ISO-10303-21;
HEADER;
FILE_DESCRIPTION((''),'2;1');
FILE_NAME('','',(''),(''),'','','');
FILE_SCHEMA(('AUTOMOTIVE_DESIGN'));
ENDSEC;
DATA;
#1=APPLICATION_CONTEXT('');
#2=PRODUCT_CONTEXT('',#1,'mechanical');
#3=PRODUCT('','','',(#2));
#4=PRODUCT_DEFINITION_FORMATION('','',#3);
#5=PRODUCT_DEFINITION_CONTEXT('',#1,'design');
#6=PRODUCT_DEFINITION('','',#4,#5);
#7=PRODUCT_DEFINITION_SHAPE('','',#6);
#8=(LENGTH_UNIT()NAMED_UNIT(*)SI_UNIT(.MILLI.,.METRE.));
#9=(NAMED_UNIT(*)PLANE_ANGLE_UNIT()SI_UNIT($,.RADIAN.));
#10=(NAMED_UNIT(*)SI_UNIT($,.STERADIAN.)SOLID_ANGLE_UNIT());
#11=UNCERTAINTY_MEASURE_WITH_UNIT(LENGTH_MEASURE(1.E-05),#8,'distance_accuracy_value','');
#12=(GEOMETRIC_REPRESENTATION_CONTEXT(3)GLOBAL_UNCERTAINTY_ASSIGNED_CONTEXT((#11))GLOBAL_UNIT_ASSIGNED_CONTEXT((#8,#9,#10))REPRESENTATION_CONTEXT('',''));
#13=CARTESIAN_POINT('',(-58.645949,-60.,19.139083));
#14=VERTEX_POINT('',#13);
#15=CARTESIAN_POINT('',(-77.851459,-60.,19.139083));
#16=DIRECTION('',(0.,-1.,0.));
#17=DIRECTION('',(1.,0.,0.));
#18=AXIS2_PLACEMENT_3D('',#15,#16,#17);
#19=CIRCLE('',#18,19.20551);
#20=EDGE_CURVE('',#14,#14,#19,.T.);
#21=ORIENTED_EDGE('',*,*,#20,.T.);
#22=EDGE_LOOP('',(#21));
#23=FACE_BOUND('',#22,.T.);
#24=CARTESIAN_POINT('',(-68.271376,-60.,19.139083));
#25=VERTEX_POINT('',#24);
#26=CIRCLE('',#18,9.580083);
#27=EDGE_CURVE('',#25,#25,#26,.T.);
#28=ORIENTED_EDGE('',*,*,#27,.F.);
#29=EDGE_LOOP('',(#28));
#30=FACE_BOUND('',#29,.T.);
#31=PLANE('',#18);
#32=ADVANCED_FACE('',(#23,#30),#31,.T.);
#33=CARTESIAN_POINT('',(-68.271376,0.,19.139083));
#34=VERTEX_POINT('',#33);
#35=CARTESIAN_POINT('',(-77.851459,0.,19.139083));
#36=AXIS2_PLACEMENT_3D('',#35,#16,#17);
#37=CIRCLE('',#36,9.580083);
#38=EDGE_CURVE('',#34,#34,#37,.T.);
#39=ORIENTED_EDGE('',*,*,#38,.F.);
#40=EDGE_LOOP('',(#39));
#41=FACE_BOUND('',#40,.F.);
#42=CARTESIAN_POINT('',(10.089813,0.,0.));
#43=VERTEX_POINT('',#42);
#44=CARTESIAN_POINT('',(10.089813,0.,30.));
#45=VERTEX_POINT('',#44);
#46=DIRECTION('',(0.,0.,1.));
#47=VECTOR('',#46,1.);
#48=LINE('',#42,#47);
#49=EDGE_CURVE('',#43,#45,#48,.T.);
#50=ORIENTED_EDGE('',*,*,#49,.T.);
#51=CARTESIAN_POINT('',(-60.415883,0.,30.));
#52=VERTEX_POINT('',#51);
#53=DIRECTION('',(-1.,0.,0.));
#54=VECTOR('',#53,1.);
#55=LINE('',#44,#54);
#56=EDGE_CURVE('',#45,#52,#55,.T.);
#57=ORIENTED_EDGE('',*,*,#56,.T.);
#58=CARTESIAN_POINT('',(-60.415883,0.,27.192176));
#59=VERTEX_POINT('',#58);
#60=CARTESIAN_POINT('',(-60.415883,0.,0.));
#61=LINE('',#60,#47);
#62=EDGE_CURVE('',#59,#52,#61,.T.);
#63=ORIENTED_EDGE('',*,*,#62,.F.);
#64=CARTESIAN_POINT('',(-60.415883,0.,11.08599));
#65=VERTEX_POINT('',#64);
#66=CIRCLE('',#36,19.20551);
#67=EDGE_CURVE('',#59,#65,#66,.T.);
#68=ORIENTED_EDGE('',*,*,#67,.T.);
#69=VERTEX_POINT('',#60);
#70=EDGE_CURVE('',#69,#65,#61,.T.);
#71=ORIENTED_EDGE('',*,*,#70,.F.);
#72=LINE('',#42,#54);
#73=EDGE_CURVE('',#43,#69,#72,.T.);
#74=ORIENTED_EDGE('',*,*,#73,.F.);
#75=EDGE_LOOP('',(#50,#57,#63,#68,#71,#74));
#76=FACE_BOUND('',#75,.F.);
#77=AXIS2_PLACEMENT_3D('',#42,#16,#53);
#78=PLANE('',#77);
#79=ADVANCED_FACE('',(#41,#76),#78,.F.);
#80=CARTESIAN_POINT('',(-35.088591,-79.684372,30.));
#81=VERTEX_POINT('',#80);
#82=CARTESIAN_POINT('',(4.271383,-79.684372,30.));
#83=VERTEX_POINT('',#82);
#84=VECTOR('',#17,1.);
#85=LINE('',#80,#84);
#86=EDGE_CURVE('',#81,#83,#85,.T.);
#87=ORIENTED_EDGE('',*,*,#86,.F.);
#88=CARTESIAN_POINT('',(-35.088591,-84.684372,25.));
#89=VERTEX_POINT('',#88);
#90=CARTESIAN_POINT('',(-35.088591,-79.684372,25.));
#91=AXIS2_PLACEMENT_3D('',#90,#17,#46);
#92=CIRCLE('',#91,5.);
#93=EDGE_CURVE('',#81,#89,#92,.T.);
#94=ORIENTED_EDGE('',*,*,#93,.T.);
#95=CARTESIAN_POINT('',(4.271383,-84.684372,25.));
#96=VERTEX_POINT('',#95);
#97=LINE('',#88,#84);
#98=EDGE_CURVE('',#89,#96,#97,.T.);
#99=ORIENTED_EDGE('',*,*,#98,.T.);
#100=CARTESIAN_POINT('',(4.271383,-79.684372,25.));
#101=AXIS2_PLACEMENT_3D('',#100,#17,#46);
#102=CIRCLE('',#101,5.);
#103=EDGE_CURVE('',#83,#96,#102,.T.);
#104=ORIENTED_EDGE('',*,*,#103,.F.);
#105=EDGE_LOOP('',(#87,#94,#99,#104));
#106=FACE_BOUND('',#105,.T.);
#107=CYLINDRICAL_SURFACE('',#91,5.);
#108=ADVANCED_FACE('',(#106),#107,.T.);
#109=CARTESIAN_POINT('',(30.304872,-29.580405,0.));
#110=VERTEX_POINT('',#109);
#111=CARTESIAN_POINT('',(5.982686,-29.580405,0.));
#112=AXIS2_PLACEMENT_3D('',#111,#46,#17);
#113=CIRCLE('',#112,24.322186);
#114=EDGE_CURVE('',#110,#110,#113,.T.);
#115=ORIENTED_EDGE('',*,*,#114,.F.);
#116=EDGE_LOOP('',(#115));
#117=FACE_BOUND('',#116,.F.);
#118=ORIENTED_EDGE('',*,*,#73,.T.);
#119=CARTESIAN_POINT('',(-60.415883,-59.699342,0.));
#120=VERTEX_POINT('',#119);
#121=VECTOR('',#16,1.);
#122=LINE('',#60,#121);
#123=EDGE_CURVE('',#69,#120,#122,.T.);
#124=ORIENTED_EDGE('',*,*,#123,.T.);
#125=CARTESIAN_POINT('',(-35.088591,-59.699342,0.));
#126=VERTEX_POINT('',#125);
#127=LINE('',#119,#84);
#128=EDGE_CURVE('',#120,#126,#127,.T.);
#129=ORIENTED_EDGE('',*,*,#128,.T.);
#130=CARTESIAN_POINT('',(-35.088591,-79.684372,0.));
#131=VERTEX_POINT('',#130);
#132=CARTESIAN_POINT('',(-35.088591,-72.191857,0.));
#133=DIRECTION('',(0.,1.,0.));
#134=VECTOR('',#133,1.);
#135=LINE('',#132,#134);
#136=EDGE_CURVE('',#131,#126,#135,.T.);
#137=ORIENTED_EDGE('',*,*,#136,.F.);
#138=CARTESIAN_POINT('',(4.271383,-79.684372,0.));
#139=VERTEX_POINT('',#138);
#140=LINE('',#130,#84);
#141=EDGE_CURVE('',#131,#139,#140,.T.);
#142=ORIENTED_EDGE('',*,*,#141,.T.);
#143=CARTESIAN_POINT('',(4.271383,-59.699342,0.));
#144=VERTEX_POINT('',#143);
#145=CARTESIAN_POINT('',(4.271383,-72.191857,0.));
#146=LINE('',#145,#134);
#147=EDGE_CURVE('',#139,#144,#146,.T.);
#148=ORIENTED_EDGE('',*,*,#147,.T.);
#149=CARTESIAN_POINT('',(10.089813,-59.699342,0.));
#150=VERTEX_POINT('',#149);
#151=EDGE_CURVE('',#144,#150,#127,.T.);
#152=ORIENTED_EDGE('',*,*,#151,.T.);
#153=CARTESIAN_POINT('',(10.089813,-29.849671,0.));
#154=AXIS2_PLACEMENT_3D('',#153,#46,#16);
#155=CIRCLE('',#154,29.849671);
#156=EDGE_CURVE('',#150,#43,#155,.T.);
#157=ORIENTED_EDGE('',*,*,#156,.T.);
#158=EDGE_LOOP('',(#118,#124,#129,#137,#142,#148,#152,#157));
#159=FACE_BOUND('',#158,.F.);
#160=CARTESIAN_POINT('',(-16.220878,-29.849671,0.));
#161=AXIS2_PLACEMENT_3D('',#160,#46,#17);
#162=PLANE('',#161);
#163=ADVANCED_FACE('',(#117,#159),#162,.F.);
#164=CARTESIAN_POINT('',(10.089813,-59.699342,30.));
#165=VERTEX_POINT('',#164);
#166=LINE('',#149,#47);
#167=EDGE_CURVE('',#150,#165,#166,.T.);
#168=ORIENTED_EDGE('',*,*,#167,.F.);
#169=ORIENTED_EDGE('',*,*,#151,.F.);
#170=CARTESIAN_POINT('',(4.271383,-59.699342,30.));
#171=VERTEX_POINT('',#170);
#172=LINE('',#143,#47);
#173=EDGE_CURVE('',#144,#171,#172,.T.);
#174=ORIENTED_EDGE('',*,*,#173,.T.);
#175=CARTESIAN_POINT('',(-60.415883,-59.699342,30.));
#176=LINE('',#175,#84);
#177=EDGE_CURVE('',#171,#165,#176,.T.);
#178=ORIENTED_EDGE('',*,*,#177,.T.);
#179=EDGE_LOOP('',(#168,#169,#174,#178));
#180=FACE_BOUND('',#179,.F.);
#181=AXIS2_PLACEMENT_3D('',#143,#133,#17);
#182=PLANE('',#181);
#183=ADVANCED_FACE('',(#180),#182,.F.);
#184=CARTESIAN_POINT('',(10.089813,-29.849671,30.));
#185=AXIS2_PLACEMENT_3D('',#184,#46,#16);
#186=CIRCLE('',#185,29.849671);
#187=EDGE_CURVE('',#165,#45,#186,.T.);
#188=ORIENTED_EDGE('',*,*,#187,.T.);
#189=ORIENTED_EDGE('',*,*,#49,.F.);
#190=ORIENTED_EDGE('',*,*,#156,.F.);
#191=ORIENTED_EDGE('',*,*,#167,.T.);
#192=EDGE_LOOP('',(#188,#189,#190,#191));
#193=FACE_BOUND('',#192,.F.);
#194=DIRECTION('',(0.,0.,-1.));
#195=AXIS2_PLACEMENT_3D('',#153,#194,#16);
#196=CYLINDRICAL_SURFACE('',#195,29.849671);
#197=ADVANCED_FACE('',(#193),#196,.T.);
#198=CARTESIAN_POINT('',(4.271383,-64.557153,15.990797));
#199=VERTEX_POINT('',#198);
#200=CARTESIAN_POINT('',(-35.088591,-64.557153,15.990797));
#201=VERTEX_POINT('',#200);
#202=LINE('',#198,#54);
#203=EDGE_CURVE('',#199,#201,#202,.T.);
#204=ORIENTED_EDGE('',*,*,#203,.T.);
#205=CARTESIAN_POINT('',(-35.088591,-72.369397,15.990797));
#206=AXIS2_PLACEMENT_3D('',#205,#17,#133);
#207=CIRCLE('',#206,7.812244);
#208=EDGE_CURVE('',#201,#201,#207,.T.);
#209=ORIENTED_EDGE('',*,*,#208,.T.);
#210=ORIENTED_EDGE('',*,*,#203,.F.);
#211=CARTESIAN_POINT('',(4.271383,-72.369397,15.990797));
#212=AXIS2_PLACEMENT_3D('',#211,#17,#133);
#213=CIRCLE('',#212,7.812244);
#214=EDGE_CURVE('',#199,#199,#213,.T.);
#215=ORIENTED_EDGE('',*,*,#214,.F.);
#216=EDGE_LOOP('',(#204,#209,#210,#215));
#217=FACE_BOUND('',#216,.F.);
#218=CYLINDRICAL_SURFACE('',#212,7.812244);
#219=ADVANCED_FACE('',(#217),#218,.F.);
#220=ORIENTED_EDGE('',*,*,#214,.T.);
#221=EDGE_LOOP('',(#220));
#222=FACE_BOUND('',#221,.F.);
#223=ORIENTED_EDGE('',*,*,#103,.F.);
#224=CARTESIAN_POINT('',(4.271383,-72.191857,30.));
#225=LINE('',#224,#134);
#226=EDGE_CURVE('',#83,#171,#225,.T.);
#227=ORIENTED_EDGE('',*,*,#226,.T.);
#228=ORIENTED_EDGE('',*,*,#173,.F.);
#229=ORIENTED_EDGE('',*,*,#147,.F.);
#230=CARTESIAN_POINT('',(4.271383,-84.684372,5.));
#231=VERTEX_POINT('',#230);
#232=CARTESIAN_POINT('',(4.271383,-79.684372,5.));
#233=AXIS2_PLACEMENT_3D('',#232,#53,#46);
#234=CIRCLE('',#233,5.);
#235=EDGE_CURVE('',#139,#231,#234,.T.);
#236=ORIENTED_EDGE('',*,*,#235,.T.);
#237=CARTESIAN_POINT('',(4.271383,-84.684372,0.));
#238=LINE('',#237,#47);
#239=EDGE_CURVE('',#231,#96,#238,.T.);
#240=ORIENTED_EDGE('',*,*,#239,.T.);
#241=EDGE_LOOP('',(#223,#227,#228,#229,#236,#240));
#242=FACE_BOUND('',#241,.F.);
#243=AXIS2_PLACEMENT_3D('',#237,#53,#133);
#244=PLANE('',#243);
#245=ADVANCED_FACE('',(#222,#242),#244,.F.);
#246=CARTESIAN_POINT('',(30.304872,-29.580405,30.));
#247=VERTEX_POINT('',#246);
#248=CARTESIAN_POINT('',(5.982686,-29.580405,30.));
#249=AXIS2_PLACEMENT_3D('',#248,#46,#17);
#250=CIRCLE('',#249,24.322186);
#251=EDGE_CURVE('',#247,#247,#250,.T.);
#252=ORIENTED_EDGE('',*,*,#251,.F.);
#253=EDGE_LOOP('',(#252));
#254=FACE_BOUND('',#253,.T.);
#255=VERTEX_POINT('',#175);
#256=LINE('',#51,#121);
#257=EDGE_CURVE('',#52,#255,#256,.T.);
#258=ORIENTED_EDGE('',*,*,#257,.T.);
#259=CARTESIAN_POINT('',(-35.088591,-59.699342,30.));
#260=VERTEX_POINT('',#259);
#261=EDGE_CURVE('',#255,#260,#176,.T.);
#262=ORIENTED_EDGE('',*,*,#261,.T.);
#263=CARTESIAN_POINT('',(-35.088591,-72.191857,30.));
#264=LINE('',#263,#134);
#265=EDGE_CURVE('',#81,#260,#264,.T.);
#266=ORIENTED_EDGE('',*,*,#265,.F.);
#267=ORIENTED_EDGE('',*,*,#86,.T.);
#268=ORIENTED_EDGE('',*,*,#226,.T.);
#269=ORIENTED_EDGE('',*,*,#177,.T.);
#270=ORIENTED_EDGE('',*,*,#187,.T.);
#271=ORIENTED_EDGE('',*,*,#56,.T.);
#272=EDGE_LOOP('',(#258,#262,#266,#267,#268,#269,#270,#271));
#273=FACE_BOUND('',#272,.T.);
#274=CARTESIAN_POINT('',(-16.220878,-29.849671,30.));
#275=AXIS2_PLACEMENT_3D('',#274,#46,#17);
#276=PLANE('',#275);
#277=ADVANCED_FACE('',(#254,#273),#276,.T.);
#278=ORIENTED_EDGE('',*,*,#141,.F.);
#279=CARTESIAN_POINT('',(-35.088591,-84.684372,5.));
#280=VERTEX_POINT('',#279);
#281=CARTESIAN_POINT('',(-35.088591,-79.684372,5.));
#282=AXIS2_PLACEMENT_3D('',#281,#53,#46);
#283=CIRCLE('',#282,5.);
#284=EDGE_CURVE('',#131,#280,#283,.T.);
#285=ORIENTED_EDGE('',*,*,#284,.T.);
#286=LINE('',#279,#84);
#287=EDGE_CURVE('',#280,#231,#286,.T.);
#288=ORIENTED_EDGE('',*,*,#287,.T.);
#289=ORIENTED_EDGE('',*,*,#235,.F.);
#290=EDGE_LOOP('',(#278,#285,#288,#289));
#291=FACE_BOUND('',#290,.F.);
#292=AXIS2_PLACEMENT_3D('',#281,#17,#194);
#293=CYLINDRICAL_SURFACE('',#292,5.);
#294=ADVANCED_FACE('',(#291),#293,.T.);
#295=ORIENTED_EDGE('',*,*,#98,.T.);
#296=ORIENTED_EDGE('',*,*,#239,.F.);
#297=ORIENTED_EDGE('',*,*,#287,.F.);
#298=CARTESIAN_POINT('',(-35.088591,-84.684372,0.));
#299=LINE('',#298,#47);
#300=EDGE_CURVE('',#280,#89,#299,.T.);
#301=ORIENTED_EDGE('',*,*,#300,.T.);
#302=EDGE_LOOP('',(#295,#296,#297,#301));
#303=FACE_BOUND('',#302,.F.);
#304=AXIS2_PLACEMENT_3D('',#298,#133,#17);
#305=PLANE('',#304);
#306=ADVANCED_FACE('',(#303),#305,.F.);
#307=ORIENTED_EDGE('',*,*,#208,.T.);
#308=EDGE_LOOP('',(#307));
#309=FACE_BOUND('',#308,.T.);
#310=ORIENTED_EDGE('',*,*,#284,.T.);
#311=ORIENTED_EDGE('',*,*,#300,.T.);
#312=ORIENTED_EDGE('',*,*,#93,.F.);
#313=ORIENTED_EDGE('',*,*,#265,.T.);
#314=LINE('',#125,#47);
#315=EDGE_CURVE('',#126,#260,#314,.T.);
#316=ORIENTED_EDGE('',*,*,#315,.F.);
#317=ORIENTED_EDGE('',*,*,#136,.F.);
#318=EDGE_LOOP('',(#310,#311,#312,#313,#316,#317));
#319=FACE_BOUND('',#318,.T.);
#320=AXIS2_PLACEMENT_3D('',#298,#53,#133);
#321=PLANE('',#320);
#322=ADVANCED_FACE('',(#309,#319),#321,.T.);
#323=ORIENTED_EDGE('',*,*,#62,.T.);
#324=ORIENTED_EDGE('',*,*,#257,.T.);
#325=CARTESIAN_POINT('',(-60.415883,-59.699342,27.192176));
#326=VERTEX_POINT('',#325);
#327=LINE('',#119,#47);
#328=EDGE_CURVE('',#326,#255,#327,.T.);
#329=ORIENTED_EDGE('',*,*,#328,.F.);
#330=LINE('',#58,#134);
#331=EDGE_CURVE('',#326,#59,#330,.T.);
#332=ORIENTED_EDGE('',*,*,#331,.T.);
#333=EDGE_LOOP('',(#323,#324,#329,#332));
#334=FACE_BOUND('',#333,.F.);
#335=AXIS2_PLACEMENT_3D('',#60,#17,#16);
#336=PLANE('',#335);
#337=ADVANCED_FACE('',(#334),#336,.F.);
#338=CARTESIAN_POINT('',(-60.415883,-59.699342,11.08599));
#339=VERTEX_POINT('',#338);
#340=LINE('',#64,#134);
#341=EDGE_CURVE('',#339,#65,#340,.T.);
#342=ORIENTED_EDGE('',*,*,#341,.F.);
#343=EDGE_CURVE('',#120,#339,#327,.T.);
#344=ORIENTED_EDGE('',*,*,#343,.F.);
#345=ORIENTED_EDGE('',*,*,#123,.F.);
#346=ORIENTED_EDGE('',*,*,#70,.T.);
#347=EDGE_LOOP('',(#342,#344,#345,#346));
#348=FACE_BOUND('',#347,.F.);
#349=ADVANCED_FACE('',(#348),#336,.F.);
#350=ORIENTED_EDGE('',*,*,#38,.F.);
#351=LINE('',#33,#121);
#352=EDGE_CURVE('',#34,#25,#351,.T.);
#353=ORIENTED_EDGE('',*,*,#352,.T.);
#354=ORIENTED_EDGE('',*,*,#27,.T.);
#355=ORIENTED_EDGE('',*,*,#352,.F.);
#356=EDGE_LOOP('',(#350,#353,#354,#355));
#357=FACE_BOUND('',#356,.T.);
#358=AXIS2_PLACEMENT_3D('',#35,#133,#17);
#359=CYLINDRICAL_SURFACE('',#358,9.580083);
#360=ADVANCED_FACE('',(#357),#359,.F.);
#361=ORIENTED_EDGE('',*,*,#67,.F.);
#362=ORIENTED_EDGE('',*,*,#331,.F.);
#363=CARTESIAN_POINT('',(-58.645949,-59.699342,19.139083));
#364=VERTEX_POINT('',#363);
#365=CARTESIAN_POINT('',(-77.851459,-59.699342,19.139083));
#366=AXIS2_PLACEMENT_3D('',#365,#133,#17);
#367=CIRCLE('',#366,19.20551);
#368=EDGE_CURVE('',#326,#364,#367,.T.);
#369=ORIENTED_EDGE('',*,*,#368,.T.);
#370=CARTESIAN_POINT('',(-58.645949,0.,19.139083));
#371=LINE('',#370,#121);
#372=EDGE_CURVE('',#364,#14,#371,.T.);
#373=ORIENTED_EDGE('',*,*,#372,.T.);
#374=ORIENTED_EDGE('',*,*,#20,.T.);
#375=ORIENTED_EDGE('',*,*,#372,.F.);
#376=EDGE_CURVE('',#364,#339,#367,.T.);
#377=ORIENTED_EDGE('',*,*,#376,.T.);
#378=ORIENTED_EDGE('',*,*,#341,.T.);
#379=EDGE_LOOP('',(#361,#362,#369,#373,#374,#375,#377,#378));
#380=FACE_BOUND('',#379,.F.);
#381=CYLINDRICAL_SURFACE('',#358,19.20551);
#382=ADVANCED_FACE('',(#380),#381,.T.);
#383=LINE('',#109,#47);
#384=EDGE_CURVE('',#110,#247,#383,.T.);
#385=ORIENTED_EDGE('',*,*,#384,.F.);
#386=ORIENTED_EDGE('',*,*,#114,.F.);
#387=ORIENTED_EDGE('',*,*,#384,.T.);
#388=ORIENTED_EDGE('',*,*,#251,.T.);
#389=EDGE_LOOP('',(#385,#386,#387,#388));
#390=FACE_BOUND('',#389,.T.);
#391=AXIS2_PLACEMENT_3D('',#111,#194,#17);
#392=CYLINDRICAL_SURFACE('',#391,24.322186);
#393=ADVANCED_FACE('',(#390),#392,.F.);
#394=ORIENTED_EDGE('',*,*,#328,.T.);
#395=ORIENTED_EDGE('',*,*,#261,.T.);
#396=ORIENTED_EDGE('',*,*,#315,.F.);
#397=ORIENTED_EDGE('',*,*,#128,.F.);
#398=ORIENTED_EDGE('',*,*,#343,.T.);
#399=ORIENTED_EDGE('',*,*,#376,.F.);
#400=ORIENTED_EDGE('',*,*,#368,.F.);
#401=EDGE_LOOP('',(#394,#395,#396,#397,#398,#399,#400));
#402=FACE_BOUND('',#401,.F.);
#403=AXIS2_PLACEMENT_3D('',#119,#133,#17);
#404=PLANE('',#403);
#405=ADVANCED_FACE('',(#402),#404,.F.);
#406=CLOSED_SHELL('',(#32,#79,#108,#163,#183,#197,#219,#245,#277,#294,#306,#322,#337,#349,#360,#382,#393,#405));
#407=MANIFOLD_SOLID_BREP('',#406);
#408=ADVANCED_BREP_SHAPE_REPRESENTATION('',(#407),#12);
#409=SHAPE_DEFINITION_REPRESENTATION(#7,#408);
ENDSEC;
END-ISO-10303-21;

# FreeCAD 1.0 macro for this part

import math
import FreeCAD as App
import Part
import Sketcher
from FreeCAD import Vector
Q = App.Units.Quantity


def edges_at(feature, points):
    """Names of the edges that pass closest to the given points."""
    edges = feature.Shape.Edges
    near = lambda p: min(range(len(edges)), key=lambda i: edges[i].distToShape(Part.Vertex(*p))[0])
    return sorted({f"Edge{near(p) + 1}" for p in points})

doc = App.newDocument("Part")
params = doc.addObject("Spreadsheet::Sheet", "Params")
for row, (alias, value) in enumerate([
    ("pad1_length", "60 mm"),
    ("pad2_length", "30 mm"),
    ("fillet_radius", "5 mm"),
    ("pocket1_length", "45 mm"),
], start=1):
    params.set(f"A{row}", alias)
    params.set(f"B{row}", "=" + value)
    params.setAlias(f"B{row}", alias)

body = doc.addObject("PartDesign::Body", "Body")

sketch1 = doc.addObject("Sketcher::SketchObject", "Sketch")
body.addObject(sketch1)
sketch1.AttachmentSupport = (doc.XZ_Plane, [""])
sketch1.MapMode = "FlatFace"
sketch1.addGeometry([
    Part.Circle(Vector(-77.851459, 19.139083, 0), Vector(0, 0, 1), 19.20551),
    Part.Circle(Vector(-77.851459, 19.139083, 0), Vector(0, 0, 1), 9.580083),
], False)
sketch1.addConstraint([
    Sketcher.Constraint("Coincident", 1, 3, 0, 3),
    Sketcher.Constraint("Diameter", 0, Q("38.41102 mm")),
    Sketcher.Constraint("Diameter", 1, Q("19.160166 mm")),
    Sketcher.Constraint("DistanceX", 0, 3, -1, 1, Q("77.851459 mm")),
    Sketcher.Constraint("DistanceY", -1, 1, 0, 3, Q("19.139083 mm")),
])
pad1 = doc.addObject("PartDesign::Pad", "Pad")
body.addObject(pad1)
pad1.Profile = sketch1
pad1.setExpression("Length", "Params.pad1_length")

sketch2 = doc.addObject("Sketcher::SketchObject", "Sketch001")
body.addObject(sketch2)
sketch2.AttachmentSupport = (doc.XY_Plane, [""])
sketch2.MapMode = "FlatFace"
sketch2.addGeometry([
    Part.LineSegment(Vector(10.089813, 0, 0), Vector(-60.415883, 0, 0)),
    Part.LineSegment(Vector(-60.415883, 0, 0), Vector(-60.415883, -59.699342, 0)),
    Part.LineSegment(Vector(-60.415883, -59.699342, 0), Vector(-35.088591, -59.699342, 0)),
    Part.LineSegment(Vector(-35.088591, -59.699342, 0), Vector(-35.088591, -84.684372, 0)),
    Part.LineSegment(Vector(-35.088591, -84.684372, 0), Vector(4.271383, -84.684372, 0)),
    Part.LineSegment(Vector(4.271383, -84.684372, 0), Vector(4.271383, -59.699342, 0)),
    Part.LineSegment(Vector(4.271383, -59.699342, 0), Vector(10.089813, -59.699342, 0)),
    Part.ArcOfCircle(Part.Circle(Vector(10.089813, -29.849671, 0), Vector(0, 0, 1), 29.849671), math.radians(-90), math.radians(90)),
    Part.Circle(Vector(5.982686, -29.580405, 0), Vector(0, 0, 1), 24.322186),
], False)
sketch2.addConstraint([
    Sketcher.Constraint("Coincident", 0, 2, 1, 1),
    Sketcher.Constraint("Coincident", 1, 2, 2, 1),
    Sketcher.Constraint("Coincident", 2, 2, 3, 1),
    Sketcher.Constraint("Coincident", 3, 2, 4, 1),
    Sketcher.Constraint("Coincident", 4, 2, 5, 1),
    Sketcher.Constraint("Coincident", 5, 2, 6, 1),
    Sketcher.Constraint("Tangent", 6, 2, 7, 1),
    Sketcher.Constraint("Tangent", 7, 2, 0, 1),
    Sketcher.Constraint("Horizontal", 0),
    Sketcher.Constraint("Vertical", 1),
    Sketcher.Constraint("Horizontal", 2),
    Sketcher.Constraint("Vertical", 3),
    Sketcher.Constraint("Horizontal", 4),
    Sketcher.Constraint("Vertical", 5),
    Sketcher.Constraint("Horizontal", 6),
    Sketcher.Constraint("PointOnObject", 0, 2, -1),
    Sketcher.Constraint("Horizontal", 2, 2, 5, 2),
    Sketcher.Constraint("Diameter", 8, Q("48.644372 mm")),
    Sketcher.Constraint("Radius", 7, Q("29.849671 mm")),
    Sketcher.Constraint("DistanceX", 2, 1, 2, 2, Q("25.327292 mm")),
    Sketcher.Constraint("DistanceX", 6, 1, 6, 2, Q("5.81843 mm")),
    Sketcher.Constraint("DistanceY", 3, 2, 3, 1, Q("24.98503 mm")),
    Sketcher.Constraint("DistanceX", 0, 2, 0, 1, Q("70.505696 mm")),
    Sketcher.Constraint("DistanceX", 2, 2, -1, 1, Q("35.088591 mm")),
    Sketcher.Constraint("DistanceX", 0, 2, 8, 3, Q("66.398569 mm")),
    Sketcher.Constraint("DistanceY", 8, 3, -1, 1, Q("29.580405 mm")),
])
pad2 = doc.addObject("PartDesign::Pad", "Pad001")
body.addObject(pad2)
pad2.Profile = sketch2
pad2.setExpression("Length", "Params.pad2_length")
doc.recompute()

fillet = doc.addObject("PartDesign::Fillet", "Fillet")
body.addObject(fillet)
fillet.Base = (pad2, edges_at(pad2, [(-15.409, -84.684, 30), (-15.409, -84.684, 0)]))
fillet.setExpression("Radius", "Params.fillet_radius")

sketch3 = doc.addObject("Sketcher::SketchObject", "Sketch002")
body.addObject(sketch3)
sketch3.AttachmentSupport = (doc.YZ_Plane, [""])
sketch3.MapMode = "FlatFace"
sketch3.AttachmentOffset = App.Placement(Vector(0, 0, 4.271383), App.Rotation())
sketch3.addGeometry(Part.Circle(Vector(-72.369397, 15.990797, 0), Vector(0, 0, 1), 7.812244), False)
sketch3.addConstraint([
    Sketcher.Constraint("Diameter", 0, Q("15.624488 mm")),
    Sketcher.Constraint("DistanceX", 0, 3, -1, 1, Q("72.369397 mm")),
    Sketcher.Constraint("DistanceY", -1, 1, 0, 3, Q("15.990797 mm")),
])
pocket1 = doc.addObject("PartDesign::Pocket", "Pocket")
body.addObject(pocket1)
pocket1.Profile = sketch3
pocket1.setExpression("Length", "Params.pocket1_length")

doc.recompute()
